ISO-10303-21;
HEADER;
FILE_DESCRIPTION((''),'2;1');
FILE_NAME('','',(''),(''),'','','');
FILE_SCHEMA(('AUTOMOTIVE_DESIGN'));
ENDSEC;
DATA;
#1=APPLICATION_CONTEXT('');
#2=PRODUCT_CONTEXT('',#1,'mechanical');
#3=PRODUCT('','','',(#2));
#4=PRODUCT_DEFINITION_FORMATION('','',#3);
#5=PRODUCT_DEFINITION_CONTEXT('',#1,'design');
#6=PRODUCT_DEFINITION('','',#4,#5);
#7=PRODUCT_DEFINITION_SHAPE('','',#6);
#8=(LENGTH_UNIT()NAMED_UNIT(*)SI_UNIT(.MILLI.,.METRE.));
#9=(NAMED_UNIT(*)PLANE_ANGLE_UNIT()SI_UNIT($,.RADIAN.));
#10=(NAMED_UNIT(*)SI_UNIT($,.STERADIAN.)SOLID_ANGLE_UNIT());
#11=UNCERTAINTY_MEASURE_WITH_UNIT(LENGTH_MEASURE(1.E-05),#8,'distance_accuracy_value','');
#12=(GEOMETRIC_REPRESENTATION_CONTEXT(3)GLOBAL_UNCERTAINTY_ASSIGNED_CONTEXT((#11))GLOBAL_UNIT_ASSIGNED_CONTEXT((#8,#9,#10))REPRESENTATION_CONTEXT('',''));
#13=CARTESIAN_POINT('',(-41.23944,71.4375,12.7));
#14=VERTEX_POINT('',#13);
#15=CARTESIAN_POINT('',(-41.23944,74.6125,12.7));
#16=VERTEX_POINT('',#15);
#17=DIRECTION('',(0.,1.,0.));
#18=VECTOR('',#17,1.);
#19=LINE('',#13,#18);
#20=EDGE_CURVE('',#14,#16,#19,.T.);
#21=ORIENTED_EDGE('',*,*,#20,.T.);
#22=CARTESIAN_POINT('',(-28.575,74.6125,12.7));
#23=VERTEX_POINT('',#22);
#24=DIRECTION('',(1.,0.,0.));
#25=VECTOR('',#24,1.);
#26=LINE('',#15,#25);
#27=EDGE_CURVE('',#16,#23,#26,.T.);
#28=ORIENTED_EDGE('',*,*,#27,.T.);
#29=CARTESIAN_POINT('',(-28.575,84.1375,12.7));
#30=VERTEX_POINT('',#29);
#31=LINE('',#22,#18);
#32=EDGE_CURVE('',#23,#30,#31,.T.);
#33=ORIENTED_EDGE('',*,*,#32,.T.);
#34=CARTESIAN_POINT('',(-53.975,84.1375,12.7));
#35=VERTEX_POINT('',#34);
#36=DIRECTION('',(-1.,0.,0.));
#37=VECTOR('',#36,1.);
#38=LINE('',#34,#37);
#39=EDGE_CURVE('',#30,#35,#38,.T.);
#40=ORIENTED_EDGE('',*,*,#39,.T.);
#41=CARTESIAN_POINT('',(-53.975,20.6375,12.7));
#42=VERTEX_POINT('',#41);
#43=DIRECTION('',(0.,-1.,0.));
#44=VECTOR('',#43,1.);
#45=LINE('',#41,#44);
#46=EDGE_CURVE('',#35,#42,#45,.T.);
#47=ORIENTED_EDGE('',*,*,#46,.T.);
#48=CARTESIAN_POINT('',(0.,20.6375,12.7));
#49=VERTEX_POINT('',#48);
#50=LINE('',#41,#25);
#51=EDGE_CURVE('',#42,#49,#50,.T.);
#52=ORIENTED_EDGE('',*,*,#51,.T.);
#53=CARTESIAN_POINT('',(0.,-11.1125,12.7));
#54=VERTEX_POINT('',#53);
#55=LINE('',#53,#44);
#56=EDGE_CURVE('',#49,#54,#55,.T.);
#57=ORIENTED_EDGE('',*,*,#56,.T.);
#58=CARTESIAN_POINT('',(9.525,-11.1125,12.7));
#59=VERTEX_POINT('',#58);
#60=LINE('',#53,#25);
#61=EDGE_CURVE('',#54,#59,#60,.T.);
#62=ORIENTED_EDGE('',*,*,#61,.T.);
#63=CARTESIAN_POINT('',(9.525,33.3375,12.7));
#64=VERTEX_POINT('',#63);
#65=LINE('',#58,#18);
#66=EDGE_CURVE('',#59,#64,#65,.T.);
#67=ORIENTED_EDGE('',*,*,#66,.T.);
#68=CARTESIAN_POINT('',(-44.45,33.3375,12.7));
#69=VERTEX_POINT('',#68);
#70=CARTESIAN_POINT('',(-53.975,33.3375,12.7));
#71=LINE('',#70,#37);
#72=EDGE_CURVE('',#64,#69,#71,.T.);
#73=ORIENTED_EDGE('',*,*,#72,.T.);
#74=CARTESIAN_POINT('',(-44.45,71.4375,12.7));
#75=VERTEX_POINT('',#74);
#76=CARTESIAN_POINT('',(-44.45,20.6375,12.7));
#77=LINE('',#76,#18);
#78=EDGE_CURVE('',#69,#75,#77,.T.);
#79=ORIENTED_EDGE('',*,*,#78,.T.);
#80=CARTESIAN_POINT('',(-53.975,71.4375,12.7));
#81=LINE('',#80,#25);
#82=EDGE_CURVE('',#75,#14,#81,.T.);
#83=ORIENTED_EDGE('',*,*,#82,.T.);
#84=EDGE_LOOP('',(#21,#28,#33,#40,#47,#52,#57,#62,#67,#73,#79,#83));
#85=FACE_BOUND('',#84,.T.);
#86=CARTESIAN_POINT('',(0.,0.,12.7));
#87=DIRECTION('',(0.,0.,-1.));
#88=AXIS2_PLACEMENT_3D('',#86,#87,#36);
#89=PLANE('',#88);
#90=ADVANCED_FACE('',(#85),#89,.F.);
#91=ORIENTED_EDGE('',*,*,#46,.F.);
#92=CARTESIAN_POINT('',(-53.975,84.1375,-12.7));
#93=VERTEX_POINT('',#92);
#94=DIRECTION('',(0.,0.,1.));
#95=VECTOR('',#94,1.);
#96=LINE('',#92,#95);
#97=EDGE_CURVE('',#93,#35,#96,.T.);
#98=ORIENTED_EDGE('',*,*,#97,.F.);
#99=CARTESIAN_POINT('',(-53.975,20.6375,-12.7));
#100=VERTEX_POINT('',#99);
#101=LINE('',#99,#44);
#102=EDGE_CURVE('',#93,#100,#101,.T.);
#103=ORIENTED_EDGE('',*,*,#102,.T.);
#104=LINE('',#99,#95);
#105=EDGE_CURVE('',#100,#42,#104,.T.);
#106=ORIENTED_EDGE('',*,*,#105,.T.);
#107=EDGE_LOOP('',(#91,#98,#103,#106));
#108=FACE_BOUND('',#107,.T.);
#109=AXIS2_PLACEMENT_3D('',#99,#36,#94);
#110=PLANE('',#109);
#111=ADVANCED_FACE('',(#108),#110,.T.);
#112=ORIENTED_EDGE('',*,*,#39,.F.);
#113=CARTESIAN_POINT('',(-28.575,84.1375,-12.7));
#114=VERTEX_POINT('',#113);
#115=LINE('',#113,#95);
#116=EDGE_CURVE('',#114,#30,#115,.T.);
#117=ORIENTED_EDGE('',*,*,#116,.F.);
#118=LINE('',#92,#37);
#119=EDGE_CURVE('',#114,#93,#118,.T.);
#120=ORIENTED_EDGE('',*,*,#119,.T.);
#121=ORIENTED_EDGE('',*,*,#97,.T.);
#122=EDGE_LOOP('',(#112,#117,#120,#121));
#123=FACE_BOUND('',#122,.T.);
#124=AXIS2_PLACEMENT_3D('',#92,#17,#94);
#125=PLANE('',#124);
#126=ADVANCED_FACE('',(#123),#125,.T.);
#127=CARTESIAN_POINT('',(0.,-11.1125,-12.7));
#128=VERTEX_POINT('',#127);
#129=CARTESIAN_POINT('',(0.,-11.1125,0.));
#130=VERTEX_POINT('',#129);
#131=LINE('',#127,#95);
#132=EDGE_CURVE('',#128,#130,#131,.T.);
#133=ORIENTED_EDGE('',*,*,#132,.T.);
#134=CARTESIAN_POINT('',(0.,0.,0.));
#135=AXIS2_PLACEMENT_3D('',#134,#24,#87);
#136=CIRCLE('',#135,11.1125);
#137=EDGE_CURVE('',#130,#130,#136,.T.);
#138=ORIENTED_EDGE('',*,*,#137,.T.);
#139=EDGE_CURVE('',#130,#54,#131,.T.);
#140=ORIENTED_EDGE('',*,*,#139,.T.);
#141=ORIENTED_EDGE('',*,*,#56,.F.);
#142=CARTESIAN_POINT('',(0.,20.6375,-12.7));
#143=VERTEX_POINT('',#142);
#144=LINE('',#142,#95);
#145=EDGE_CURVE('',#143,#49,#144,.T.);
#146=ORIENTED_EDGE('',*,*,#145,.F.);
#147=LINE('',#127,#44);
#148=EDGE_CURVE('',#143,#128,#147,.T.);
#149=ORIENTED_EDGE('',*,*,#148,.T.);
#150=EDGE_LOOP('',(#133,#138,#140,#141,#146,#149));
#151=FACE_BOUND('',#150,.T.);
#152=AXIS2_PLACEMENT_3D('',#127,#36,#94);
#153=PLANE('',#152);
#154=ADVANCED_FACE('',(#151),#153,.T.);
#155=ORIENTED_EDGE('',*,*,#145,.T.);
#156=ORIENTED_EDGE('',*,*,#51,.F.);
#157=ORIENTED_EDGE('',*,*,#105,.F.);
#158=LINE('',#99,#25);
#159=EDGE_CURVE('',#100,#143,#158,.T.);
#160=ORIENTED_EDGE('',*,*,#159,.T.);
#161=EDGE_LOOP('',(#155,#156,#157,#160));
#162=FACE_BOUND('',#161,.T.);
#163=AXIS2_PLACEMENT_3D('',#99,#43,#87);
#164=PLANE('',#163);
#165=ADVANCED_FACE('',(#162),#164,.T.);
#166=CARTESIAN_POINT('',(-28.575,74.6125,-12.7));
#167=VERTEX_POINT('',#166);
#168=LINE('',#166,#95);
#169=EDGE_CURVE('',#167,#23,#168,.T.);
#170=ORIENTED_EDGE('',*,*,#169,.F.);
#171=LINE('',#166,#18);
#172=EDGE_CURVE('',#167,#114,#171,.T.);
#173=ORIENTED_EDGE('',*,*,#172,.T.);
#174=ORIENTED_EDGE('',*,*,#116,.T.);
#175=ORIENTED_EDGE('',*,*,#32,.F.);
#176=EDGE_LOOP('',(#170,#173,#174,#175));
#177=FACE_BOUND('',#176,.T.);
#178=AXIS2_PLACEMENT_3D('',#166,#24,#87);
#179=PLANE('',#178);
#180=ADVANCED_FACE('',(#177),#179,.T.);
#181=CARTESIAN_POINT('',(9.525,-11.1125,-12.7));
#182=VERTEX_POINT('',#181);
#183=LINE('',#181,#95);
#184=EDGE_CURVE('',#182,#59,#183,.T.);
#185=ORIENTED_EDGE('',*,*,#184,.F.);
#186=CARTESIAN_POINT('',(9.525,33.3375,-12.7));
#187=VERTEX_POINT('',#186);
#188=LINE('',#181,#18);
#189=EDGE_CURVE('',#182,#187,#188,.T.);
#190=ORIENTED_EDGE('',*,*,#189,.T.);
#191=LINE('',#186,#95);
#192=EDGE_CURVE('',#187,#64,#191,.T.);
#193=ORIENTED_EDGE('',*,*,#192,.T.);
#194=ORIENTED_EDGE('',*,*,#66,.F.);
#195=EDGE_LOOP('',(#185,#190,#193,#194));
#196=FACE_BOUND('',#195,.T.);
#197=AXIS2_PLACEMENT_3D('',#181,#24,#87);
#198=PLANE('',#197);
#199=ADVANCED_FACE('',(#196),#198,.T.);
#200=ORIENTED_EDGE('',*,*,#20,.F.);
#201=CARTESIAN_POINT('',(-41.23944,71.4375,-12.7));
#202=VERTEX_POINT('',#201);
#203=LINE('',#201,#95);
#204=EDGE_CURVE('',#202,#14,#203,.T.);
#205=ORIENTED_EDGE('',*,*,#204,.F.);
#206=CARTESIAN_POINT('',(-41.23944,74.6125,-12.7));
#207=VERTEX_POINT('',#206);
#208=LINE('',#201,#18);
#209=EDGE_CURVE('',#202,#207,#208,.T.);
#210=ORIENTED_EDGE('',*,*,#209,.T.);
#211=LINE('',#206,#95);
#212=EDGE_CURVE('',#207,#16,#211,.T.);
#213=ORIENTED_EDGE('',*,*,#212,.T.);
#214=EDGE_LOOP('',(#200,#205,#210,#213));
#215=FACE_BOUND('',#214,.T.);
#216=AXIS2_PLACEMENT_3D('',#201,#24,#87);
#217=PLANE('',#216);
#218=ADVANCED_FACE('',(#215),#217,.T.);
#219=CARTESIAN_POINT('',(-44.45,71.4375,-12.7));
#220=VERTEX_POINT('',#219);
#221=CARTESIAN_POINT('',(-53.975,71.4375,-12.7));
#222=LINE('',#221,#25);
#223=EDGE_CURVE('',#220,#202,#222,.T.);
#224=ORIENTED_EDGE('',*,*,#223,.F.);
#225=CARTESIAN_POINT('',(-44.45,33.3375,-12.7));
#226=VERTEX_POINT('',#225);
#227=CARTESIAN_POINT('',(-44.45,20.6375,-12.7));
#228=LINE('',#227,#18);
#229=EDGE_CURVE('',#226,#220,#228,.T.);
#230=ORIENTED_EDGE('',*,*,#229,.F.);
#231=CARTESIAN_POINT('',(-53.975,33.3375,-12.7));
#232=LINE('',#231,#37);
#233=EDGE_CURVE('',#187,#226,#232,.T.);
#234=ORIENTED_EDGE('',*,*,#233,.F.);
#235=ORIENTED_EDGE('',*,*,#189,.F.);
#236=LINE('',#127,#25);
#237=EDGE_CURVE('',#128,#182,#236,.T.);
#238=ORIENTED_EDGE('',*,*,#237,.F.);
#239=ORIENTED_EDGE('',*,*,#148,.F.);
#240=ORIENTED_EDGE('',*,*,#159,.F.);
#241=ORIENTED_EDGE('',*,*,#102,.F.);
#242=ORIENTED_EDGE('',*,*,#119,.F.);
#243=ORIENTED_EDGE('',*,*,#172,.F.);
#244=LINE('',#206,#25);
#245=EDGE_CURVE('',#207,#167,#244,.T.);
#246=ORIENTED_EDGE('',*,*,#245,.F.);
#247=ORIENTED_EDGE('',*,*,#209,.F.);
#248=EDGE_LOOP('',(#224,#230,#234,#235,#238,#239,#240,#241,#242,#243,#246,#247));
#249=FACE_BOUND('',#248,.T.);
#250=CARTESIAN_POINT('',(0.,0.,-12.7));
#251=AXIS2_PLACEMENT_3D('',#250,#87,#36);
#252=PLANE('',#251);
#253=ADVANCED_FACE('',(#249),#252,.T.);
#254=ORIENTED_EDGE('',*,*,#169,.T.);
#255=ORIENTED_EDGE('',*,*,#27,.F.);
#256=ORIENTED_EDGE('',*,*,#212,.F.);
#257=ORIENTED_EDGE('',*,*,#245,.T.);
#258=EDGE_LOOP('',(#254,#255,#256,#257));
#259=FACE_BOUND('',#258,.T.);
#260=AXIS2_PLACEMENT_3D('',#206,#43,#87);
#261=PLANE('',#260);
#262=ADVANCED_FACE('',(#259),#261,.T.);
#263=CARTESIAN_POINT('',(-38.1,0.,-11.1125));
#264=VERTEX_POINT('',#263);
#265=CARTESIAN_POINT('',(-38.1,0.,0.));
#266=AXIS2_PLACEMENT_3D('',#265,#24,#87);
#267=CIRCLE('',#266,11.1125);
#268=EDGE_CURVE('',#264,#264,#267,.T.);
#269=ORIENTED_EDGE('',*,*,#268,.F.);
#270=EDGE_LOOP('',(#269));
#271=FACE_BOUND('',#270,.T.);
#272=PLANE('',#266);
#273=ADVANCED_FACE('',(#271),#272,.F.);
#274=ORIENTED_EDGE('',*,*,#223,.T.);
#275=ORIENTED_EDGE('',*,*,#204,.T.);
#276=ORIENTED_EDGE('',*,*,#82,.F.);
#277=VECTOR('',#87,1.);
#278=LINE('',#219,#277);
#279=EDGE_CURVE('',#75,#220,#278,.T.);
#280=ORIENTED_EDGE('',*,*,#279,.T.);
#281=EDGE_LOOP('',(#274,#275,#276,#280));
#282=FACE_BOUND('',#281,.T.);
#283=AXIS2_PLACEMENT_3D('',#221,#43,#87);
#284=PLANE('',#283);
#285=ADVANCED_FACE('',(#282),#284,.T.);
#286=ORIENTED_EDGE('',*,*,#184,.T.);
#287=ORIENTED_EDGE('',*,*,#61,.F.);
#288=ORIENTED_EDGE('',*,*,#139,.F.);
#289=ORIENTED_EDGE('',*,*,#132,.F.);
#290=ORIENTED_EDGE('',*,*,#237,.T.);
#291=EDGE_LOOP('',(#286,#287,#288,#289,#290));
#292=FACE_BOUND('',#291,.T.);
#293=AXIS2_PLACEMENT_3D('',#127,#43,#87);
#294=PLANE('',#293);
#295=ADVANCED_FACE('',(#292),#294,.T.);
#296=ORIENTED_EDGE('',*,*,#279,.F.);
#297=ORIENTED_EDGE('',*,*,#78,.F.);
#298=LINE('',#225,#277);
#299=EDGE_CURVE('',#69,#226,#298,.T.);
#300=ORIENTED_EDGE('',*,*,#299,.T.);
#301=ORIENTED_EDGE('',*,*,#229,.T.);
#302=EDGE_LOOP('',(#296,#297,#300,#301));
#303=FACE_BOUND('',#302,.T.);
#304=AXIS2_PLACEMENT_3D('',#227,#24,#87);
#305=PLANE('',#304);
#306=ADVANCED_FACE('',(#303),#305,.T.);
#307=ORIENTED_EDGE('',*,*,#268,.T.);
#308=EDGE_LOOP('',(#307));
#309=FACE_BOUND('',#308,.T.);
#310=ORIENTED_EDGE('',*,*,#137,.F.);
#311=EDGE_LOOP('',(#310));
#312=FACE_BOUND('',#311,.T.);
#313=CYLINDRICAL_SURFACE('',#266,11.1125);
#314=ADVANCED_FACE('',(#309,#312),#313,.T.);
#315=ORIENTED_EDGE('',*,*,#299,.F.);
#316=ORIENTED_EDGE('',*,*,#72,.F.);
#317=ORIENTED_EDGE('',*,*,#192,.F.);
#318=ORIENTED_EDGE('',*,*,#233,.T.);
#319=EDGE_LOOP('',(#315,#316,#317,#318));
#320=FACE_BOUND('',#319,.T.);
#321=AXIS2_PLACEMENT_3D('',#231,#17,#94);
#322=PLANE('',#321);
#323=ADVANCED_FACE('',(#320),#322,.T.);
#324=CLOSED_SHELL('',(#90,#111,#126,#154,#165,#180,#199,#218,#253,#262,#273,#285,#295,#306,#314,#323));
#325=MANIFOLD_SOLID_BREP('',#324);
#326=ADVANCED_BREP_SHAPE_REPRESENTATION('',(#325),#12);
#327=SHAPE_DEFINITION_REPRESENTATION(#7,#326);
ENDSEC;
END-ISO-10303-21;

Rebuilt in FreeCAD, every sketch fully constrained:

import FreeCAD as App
import Part
import Sketcher
from FreeCAD import Vector
Q = App.Units.Quantity


def add_polygon(sketch, points):
    """Adds a closed chain of lines whose ends are joined by coincident constraints."""
    first, n = sketch.GeometryCount, len(points)
    for a, b in zip(points, points[1:] + points[:1]):
        sketch.addGeometry(Part.LineSegment(App.Vector(*a, 0), App.Vector(*b, 0)), False)
    for i in range(n):
        sketch.addConstraint(Sketcher.Constraint("Coincident", first + i, 2, first + (i + 1) % n, 1))

doc = App.newDocument("Part")
body = doc.addObject("PartDesign::Body", "Body")

# Sketch on YZ plane
sketch1 = body.newObject("Sketcher::SketchObject", "Sketch")
sketch1.AttachmentSupport = (doc.getObject("YZ_Plane"), [""])
sketch1.MapMode = "FlatFace"
sketch1.addGeometry(Part.Circle(Vector(0, 0, 0), Vector(0, 0, 1), 11.1125), False)
sketch1.addConstraint([
    Sketcher.Constraint("Coincident", 0, 3, -1, 1),
    Sketcher.Constraint("Diameter", 0, Q("0.875 in")),
])
pad1 = body.newObject("PartDesign::Pad", "Pad")
pad1.Profile = sketch1
pad1.Length = Q("1.5 in")
pad1.Reversed = True

# Sketch on XY plane
sketch2 = body.newObject("Sketcher::SketchObject", "Sketch001")
sketch2.AttachmentSupport = (doc.getObject("XY_Plane"), [""])
sketch2.MapMode = "FlatFace"
add_polygon(sketch2, [(0, 20.6375), (0, -11.1125), (9.525, -11.1125), (9.525, 20.6375)])  # lines 0-3
sketch2.addConstraint([
    Sketcher.Constraint("Vertical", 0),
    Sketcher.Constraint("Horizontal", 1),
    Sketcher.Constraint("Vertical", 2),
    Sketcher.Constraint("Horizontal", 3),
    Sketcher.Constraint("PointOnObject", 0, 2, -2),
    Sketcher.Constraint("DistanceY", 0, 2, 0, 1, Q("1.25 in")),
    Sketcher.Constraint("DistanceX", 1, 1, 1, 2, Q("0.375 in")),
    Sketcher.Constraint("DistanceY", 0, 2, -1, 1, Q("0.4375 in")),
])
pad2 = body.newObject("PartDesign::Pad", "Pad001")
pad2.Profile = sketch2
pad2.Type = "TwoLengths"
pad2.Length = Q("0.5 in")
pad2.Length2 = Q("0.5 in")

# Sketch on XY plane
sketch3 = body.newObject("Sketcher::SketchObject", "Sketch002")
sketch3.AttachmentSupport = (doc.getObject("XY_Plane"), [""])
sketch3.MapMode = "FlatFace"
add_polygon(sketch3, [(-53.975, 33.3375), (-53.975, 20.6375), (9.525, 20.6375), (9.525, 33.3375)])  # lines 0-3
sketch3.addConstraint([
    Sketcher.Constraint("Vertical", 0),
    Sketcher.Constraint("Horizontal", 1),
    Sketcher.Constraint("Vertical", 2),
    Sketcher.Constraint("Horizontal", 3),
    Sketcher.Constraint("DistanceX", 1, 1, 1, 2, Q("2.5 in")),
    Sketcher.Constraint("DistanceY", 0, 2, 0, 1, Q("0.5 in")),
    Sketcher.Constraint("DistanceX", 0, 2, -1, 1, Q("2.125 in")),
    Sketcher.Constraint("DistanceY", -1, 1, 0, 2, Q("0.8125 in")),
])
pad3 = body.newObject("PartDesign::Pad", "Pad002")
pad3.Profile = sketch3
pad3.Type = "TwoLengths"
pad3.Length = Q("0.5 in")
pad3.Length2 = Q("0.5 in")

# Sketch on XY plane
sketch4 = body.newObject("Sketcher::SketchObject", "Sketch003")
sketch4.AttachmentSupport = (doc.getObject("XY_Plane"), [""])
sketch4.MapMode = "FlatFace"
add_polygon(sketch4, [(-53.975, 84.1375), (-53.975, 20.6375), (-44.45, 20.6375), (-44.45, 84.1375)])  # lines 0-3
sketch4.addConstraint([
    Sketcher.Constraint("Vertical", 0),
    Sketcher.Constraint("Horizontal", 1),
    Sketcher.Constraint("Vertical", 2),
    Sketcher.Constraint("Horizontal", 3),
    Sketcher.Constraint("DistanceY", 0, 2, 0, 1, Q("2.5 in")),
    Sketcher.Constraint("DistanceX", 1, 1, 1, 2, Q("0.375 in")),
    Sketcher.Constraint("DistanceX", 1, 2, -1, 1, Q("1.75 in")),
    Sketcher.Constraint("DistanceY", -1, 1, 0, 2, Q("0.8125 in")),
])
pad4 = body.newObject("PartDesign::Pad", "Pad003")
pad4.Profile = sketch4
pad4.Type = "TwoLengths"
pad4.Length = Q("0.5 in")
pad4.Length2 = Q("0.5 in")

# Sketch on XY plane
sketch5 = body.newObject("Sketcher::SketchObject", "Sketch004")
sketch5.AttachmentSupport = (doc.getObject("XY_Plane"), [""])
sketch5.MapMode = "FlatFace"
add_polygon(sketch5, [(-53.975, 71.4375), (-41.23944, 71.4375), (-41.23944, 74.6125), (-28.575, 74.6125), (-28.575, 84.1375), (-53.975, 84.1375)])  # lines 0-5
sketch5.addConstraint([
    Sketcher.Constraint("Horizontal", 0),
    Sketcher.Constraint("Vertical", 1),
    Sketcher.Constraint("Horizontal", 2),
    Sketcher.Constraint("Vertical", 3),
    Sketcher.Constraint("Horizontal", 4),
    Sketcher.Constraint("Vertical", 5),
    Sketcher.Constraint("DistanceX", 4, 2, 4, 1, Q("1 in")),
    Sketcher.Constraint("DistanceY", 5, 2, 5, 1, Q("0.5 in")),
    Sketcher.Constraint("DistanceY", 1, 1, 1, 2, Q("0.125 in")),
    Sketcher.Constraint("DistanceX", 0, 1, 0, 2, Q("0.5014 in")),
    Sketcher.Constraint("DistanceY", -1, 1, 0, 2, Q("2.8125 in")),
    Sketcher.Constraint("DistanceX", 2, 2, -1, 1, Q("1.125 in")),
])
pad5 = body.newObject("PartDesign::Pad", "Pad004")
pad5.Profile = sketch5
pad5.Type = "TwoLengths"
pad5.Length = Q("0.5 in")
pad5.Length2 = Q("0.5 in")

doc.recompute()
